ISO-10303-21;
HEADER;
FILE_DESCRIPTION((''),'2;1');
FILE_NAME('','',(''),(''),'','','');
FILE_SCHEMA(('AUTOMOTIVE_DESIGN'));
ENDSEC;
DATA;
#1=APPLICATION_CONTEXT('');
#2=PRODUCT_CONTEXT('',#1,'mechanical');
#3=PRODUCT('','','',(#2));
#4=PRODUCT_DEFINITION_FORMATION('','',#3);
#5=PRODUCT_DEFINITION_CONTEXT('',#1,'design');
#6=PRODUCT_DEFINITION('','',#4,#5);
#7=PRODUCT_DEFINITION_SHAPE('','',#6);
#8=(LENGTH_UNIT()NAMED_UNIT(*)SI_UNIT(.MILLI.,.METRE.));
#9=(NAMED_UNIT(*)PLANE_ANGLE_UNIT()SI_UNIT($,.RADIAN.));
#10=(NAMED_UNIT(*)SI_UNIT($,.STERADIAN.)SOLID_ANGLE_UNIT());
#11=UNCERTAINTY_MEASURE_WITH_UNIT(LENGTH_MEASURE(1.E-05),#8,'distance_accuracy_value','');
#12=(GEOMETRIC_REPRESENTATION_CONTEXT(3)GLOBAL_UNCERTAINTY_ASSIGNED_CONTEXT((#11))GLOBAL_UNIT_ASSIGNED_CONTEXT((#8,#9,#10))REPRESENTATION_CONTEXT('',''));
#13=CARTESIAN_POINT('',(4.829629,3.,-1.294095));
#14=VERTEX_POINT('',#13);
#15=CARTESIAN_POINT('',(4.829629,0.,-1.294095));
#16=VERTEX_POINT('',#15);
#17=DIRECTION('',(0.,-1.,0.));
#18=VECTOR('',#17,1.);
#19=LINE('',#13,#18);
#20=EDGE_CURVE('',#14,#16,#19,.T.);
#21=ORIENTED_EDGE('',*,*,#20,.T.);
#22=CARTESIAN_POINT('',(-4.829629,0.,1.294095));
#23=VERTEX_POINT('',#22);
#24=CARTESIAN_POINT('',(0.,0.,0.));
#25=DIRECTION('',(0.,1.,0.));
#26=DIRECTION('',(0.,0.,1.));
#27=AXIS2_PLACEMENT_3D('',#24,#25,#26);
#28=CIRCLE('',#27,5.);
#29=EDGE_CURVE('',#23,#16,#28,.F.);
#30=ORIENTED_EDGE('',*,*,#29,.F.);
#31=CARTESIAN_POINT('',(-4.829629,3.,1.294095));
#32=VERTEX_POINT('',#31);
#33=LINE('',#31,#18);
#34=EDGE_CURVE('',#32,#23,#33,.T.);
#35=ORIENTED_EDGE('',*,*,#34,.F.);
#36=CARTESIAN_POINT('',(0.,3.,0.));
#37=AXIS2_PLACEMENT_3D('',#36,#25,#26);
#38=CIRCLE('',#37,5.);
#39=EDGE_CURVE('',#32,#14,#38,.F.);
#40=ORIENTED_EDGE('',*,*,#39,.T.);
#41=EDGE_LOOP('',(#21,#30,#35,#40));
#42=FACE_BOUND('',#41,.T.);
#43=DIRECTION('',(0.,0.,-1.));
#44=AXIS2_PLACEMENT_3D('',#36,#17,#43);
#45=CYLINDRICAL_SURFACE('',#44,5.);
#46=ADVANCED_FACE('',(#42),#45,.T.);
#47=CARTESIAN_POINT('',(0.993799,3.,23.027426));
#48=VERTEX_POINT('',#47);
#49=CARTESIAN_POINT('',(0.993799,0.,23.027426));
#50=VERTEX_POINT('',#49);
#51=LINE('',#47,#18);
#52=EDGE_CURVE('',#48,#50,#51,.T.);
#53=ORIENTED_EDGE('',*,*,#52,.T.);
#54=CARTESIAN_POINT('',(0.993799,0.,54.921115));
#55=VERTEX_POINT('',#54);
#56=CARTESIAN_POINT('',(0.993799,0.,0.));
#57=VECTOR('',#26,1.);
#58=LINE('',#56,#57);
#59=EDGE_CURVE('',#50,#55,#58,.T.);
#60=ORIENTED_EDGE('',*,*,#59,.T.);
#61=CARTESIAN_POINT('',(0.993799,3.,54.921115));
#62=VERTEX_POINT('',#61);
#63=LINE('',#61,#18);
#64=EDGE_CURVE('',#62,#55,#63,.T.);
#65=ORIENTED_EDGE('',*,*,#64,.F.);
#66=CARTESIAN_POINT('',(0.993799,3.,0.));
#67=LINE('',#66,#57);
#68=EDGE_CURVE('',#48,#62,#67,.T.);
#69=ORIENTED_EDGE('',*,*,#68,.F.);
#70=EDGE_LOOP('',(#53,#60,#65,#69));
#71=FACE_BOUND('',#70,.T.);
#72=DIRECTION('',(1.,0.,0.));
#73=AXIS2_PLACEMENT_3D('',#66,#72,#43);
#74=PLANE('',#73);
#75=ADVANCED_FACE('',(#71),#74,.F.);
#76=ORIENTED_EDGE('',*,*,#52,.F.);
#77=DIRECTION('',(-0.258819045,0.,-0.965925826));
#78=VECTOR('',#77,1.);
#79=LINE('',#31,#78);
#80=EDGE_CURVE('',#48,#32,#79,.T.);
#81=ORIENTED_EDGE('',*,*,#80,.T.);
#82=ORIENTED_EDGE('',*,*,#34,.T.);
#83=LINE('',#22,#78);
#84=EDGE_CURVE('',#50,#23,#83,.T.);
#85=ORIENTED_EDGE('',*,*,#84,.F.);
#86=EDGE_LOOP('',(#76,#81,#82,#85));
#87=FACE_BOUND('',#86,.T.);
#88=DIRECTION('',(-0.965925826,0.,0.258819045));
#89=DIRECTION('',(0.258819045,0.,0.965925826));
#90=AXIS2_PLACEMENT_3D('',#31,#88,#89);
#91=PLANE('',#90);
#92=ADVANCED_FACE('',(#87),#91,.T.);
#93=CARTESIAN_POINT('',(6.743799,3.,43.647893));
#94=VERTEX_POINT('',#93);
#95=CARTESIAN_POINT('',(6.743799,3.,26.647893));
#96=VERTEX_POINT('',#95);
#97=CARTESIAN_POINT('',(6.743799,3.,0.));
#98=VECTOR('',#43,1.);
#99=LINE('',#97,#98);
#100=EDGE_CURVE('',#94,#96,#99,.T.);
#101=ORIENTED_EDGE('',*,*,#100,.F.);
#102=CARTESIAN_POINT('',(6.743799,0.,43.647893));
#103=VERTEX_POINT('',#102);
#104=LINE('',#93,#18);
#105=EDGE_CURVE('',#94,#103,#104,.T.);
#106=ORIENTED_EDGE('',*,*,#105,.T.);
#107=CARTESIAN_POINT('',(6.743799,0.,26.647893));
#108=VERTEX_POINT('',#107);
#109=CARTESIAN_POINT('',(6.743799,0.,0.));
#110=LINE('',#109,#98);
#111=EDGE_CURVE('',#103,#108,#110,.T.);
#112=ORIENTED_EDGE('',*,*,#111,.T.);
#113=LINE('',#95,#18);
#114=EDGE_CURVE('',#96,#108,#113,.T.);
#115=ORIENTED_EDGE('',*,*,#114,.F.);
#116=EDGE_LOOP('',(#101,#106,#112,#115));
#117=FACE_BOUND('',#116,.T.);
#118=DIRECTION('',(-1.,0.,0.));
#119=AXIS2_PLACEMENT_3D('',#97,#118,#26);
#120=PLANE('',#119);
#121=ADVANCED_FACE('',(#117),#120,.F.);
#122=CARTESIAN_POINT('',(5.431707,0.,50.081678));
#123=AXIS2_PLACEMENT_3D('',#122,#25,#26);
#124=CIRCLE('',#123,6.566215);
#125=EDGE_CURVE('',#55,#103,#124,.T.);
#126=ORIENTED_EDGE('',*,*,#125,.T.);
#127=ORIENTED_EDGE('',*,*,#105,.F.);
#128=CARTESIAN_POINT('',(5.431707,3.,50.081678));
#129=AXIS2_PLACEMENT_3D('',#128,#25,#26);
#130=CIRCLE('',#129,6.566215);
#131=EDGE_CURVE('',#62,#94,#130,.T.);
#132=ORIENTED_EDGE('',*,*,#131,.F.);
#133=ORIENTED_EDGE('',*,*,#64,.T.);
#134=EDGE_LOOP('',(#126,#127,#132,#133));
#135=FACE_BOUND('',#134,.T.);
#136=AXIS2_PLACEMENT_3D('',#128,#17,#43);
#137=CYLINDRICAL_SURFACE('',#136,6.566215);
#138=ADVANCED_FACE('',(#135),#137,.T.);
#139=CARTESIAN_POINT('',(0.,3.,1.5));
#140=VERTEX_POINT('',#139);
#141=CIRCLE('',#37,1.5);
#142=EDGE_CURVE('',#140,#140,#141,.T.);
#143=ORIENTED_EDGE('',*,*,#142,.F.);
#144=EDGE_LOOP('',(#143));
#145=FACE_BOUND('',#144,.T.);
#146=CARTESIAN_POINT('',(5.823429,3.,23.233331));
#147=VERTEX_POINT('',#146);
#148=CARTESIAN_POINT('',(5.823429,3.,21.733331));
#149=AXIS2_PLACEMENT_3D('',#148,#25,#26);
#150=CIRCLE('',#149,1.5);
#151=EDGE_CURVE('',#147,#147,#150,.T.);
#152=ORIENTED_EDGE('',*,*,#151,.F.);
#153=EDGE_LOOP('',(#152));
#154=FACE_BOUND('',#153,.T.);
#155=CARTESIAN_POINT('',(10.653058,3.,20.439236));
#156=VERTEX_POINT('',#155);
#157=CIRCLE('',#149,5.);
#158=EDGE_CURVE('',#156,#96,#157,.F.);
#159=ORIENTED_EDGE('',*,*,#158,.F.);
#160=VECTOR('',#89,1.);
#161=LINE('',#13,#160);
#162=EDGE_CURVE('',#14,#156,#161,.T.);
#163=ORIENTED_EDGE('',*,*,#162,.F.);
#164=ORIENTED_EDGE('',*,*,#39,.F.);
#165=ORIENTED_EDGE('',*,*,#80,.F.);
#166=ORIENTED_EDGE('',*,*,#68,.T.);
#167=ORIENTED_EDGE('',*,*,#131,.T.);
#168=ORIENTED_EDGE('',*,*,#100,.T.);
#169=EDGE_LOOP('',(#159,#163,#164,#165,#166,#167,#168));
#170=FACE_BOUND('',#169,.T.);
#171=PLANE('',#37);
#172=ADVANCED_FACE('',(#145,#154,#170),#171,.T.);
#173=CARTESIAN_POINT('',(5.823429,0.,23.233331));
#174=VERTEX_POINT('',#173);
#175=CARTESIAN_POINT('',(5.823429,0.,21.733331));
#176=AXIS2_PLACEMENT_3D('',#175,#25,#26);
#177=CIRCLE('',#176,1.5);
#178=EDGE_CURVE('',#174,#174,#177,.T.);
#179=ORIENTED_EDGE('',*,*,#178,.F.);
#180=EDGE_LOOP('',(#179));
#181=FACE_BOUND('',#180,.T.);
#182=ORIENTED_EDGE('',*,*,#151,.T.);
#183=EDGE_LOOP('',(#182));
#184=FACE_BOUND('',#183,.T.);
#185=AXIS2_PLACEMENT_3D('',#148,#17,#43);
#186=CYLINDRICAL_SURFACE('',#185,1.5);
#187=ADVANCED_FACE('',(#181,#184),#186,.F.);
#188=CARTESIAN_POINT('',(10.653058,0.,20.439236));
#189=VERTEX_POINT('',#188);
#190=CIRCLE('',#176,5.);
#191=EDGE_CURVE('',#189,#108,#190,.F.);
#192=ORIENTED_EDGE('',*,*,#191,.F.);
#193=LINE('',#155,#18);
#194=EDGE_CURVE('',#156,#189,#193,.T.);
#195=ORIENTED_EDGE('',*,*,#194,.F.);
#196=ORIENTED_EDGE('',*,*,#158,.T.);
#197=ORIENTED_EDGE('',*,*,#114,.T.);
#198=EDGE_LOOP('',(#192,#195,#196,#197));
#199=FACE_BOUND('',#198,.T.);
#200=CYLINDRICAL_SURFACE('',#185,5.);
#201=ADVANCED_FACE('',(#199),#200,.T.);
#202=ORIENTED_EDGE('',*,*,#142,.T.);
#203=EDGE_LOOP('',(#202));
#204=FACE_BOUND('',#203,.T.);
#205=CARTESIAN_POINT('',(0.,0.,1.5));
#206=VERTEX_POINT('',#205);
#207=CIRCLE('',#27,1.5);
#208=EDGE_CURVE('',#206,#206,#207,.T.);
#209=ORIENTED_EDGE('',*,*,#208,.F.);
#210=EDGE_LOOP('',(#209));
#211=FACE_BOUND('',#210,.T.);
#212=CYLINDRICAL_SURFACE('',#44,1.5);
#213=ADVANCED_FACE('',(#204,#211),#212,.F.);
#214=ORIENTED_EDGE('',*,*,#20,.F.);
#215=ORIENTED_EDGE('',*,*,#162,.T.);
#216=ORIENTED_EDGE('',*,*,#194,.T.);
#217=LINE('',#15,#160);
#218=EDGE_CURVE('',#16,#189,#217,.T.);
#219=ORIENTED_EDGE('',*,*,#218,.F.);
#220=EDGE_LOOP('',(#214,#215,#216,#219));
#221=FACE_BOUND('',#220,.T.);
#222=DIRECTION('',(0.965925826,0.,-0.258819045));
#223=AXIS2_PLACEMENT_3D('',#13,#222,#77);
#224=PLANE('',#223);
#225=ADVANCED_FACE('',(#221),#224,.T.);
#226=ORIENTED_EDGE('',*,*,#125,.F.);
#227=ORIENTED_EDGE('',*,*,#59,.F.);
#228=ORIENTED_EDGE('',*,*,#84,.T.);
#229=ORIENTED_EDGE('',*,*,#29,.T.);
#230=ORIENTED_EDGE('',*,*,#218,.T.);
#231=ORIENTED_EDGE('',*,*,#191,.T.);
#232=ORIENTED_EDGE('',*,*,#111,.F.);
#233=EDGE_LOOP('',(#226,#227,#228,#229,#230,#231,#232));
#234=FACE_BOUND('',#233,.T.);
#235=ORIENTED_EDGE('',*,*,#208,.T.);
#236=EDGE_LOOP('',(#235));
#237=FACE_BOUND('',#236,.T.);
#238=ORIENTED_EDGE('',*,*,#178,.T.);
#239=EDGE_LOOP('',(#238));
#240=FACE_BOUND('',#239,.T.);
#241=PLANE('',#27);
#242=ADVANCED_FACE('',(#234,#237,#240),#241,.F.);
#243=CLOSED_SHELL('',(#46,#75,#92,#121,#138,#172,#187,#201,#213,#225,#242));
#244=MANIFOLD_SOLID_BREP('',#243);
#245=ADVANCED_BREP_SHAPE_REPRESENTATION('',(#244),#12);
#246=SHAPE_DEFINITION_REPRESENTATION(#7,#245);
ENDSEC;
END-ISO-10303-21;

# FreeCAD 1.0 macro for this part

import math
import FreeCAD as App
import Part
import Sketcher
Q = App.Units.Quantity

doc = App.newDocument("Part")
params = doc.addObject("Spreadsheet::Sheet", "Params")
for row, (alias, value) in enumerate([
    ("sketch1_diameter", "3 mm"),
    ("sketch1_radius", "5 mm"),
    ("sketch1_height", "17 mm"),
    ("sketch1_length", "22.5 mm"),
    ("pad1_length", "3 mm"),
], start=1):
    params.set(f"A{row}", alias)
    params.set(f"B{row}", "=" + value)
    params.setAlias(f"B{row}", alias)

body = doc.addObject("PartDesign::Body", "Body")

sketch1 = body.newObject("Sketcher::SketchObject", "Sketch")
sketch1.AttachmentSupport = (doc.getObject("XZ_Plane"), [""])
sketch1.MapMode = "FlatFace"
sketch1.addGeometry([
    Part.ArcOfCircle(Part.Circle(App.Vector(5.8, 21.7, 0), App.Vector(0, 0, 1), 5), math.radians(-15), math.radians(79)),
    Part.LineSegment(App.Vector(10.7, 20.4, 0), App.Vector(4.8, -1.3, 0)),
    Part.ArcOfCircle(Part.Circle(App.Vector(0, 0, 0), App.Vector(0, 0, 1), 5), math.radians(165), math.radians(345)),
    Part.LineSegment(App.Vector(-4.8, 1.3, 0), App.Vector(1, 23, 0)),
    Part.LineSegment(App.Vector(1, 23, 0), App.Vector(1, 54.9, 0)),
    Part.ArcOfCircle(Part.Circle(App.Vector(5.4, 50.1, 0), App.Vector(0, 0, 1), 6.6), math.radians(-78), math.radians(133)),
    Part.LineSegment(App.Vector(6.7, 43.6, 0), App.Vector(6.7, 26.6, 0)),
    Part.Circle(App.Vector(5.8, 21.7, 0), App.Vector(0, 0, 1), 1.5),
    Part.Circle(App.Vector(0, 0, 0), App.Vector(0, 0, 1), 1.5),
], False)
sketch1.addConstraint([
    Sketcher.Constraint("Tangent", 0, 1, 1, 1),
    Sketcher.Constraint("Tangent", 1, 2, 2, 2),
    Sketcher.Constraint("Tangent", 2, 1, 3, 1),
    Sketcher.Constraint("Coincident", 3, 2, 4, 1),
    Sketcher.Constraint("Coincident", 4, 2, 5, 2),
    Sketcher.Constraint("Coincident", 5, 1, 6, 1),
    Sketcher.Constraint("Coincident", 6, 2, 0, 2),
    Sketcher.Constraint("Vertical", 4),
    Sketcher.Constraint("Vertical", 6),
    Sketcher.Constraint("Coincident", 2, 3, -1, 1),
    Sketcher.Constraint("Coincident", 8, 3, -1, 1),
    Sketcher.Constraint("Coincident", 7, 3, 0, 3),
    Sketcher.Constraint("Equal", 0, 2),
    Sketcher.Constraint("Equal", 7, 8),
    Sketcher.Constraint("Parallel", 1, 3),
    Sketcher.Constraint("Equal", 1, 3),
    Sketcher.Constraint("Diameter", 7, 3.0),
    Sketcher.Constraint("Radius", 0, 5.0),
    Sketcher.Constraint("DistanceY", 6, 2, 6, 1, 17.0),
    Sketcher.Constraint("Angle", 1, Q("-105 deg")),
    Sketcher.Constraint("Distance", 1, 22.5),
    Sketcher.Constraint("DistanceX", 4, 2, 5, 1, 5.75),
    Sketcher.Constraint("Radius", 5, 6.566215),
    Sketcher.Constraint("DistanceY", 4, 1, 4, 2, 31.893689),
])
sketch1.setExpression("Constraints[16]", "Params.sketch1_diameter")
sketch1.setExpression("Constraints[17]", "Params.sketch1_radius")
sketch1.setExpression("Constraints[18]", "Params.sketch1_height")
sketch1.setExpression("Constraints[20]", "Params.sketch1_length")
pad1 = body.newObject("PartDesign::Pad", "Pad")
pad1.Profile = sketch1
pad1.setExpression("Length", "Params.pad1_length")
pad1.Reversed = True

doc.recompute()
